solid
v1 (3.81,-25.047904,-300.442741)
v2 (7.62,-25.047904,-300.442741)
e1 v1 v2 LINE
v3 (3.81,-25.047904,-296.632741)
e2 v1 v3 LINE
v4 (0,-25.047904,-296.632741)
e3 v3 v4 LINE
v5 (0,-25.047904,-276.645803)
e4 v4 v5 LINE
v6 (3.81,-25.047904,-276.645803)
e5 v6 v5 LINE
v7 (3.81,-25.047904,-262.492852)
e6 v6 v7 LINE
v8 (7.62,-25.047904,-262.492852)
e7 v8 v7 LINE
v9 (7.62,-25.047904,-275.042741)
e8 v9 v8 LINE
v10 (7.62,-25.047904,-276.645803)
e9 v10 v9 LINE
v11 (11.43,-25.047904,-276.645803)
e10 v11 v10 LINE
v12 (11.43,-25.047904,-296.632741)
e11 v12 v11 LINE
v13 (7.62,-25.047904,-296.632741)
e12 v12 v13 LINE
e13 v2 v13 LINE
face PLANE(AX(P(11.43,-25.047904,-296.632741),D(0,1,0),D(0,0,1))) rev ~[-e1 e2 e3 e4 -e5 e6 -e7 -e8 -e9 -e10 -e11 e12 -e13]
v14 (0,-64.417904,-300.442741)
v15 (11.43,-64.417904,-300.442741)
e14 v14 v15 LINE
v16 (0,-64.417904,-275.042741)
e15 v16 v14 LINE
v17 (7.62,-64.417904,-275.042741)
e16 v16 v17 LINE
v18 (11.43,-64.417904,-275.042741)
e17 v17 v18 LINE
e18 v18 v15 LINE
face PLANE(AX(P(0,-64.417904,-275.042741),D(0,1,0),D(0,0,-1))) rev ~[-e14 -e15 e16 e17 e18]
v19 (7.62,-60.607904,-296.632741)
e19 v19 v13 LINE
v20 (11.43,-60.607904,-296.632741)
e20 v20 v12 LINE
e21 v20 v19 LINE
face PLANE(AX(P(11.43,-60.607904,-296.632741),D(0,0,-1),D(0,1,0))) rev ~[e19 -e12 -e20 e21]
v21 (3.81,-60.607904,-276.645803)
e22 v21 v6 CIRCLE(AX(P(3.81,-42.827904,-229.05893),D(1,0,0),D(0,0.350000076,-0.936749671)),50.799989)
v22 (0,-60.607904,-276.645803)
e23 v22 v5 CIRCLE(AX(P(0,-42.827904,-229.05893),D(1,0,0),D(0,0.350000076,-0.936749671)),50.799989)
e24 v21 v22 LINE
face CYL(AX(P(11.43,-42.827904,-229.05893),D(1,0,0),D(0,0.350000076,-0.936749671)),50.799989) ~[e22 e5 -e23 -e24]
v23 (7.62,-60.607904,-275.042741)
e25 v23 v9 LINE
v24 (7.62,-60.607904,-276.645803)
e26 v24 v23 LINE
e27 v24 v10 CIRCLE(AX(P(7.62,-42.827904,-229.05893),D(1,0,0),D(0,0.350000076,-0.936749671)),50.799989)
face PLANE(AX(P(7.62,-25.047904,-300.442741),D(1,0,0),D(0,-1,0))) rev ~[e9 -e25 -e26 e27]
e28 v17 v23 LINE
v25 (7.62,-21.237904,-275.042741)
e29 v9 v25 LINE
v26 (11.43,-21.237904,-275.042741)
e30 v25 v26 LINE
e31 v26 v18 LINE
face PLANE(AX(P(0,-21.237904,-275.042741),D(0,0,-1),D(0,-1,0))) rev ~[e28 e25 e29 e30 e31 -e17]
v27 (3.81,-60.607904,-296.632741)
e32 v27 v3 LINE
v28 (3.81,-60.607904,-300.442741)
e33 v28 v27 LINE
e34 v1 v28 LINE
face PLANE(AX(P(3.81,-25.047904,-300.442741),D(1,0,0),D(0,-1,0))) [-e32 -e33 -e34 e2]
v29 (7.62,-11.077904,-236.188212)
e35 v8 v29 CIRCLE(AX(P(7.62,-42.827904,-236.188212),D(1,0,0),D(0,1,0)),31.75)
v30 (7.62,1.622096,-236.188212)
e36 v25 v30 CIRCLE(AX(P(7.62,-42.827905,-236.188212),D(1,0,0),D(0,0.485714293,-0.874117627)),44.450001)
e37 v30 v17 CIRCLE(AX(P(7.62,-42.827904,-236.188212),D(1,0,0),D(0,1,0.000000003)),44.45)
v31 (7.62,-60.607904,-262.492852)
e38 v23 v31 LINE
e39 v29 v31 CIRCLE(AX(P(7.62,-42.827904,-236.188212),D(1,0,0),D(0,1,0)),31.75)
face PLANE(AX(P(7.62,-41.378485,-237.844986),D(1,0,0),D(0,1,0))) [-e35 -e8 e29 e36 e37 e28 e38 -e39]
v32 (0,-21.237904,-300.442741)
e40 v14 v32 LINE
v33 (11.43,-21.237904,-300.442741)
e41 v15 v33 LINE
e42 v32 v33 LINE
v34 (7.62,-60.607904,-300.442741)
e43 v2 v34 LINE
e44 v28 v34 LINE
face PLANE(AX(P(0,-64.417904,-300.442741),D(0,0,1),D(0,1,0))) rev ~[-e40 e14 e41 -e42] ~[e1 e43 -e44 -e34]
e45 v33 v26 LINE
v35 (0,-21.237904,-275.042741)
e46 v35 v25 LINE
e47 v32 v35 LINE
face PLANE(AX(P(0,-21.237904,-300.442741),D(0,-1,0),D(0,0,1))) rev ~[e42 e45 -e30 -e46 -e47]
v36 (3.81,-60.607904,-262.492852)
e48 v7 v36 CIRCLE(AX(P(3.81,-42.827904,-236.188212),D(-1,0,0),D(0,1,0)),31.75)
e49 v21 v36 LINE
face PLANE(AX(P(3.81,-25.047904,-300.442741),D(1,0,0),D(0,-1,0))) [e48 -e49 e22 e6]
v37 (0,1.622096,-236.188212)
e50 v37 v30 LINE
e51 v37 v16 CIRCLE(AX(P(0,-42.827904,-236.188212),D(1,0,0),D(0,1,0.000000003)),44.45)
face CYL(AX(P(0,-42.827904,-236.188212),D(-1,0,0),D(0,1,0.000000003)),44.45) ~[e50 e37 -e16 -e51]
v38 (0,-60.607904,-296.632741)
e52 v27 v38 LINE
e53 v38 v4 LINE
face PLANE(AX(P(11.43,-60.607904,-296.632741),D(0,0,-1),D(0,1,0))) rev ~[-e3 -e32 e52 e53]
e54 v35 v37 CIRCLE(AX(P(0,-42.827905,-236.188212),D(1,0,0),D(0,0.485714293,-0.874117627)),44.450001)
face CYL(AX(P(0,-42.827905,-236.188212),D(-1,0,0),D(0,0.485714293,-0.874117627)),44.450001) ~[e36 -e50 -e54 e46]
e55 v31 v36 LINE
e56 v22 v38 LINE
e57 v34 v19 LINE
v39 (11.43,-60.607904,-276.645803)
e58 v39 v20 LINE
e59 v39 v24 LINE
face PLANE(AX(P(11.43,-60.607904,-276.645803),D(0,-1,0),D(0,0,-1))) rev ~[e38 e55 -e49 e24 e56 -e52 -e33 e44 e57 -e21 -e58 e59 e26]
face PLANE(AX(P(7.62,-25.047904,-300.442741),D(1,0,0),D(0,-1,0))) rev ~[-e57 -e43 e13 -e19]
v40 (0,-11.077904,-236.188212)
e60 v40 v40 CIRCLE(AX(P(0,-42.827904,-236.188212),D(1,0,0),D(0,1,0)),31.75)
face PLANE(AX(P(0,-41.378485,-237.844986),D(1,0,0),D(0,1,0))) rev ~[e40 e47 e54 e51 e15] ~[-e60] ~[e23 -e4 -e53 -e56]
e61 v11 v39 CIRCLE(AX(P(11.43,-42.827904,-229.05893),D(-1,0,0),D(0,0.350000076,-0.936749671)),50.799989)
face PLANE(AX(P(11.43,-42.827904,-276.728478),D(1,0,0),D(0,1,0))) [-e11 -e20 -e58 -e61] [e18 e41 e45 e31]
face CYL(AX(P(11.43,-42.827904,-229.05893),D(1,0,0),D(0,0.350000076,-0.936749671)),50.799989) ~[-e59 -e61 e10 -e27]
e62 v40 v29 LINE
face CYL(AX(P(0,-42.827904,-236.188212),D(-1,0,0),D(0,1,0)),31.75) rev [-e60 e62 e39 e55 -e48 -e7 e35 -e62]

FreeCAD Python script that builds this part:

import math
import FreeCAD as App
import Part
import Sketcher
from FreeCAD import Vector
Q = App.Units.Quantity


def add_polygon(sketch, points):
    """Adds a closed chain of lines whose ends are joined by coincident constraints."""
    first, n = sketch.GeometryCount, len(points)
    for a, b in zip(points, points[1:] + points[:1]):
        sketch.addGeometry(Part.LineSegment(App.Vector(*a, 0), App.Vector(*b, 0)), False)
    for i in range(n):
        sketch.addConstraint(Sketcher.Constraint("Coincident", first + i, 2, first + (i + 1) % n, 1))

doc = App.newDocument("Part")
body = doc.addObject("PartDesign::Body", "Body")

# Sketch on YZ plane
sketch1 = doc.addObject("Sketcher::SketchObject", "Sketch")
body.addObject(sketch1)
sketch1.AttachmentSupport = (doc.YZ_Plane, [""])
sketch1.MapMode = "FlatFace"
add_polygon(sketch1, [(-21, -275), (-64, -275), (-64, -300), (-21, -300)])  # lines 0-3
sketch1.addConstraint(Sketcher.Constraint("Horizontal", 0))
sketch1.addConstraint(Sketcher.Constraint("Vertical", 1))
sketch1.addConstraint(Sketcher.Constraint("Horizontal", 2))
sketch1.addConstraint(Sketcher.Constraint("Vertical", 3))
sketch1.addConstraint(Sketcher.Constraint("DistanceY", 1, 2, 1, 1, Q("1 in")))
sketch1.addConstraint(Sketcher.Constraint("DistanceX", 0, 2, 0, 1, Q("1.7 in")))
sketch1.addConstraint(Sketcher.Constraint("DistanceY", 0, 2, -1, 1, Q("275.042741 mm")))
sketch1.addConstraint(Sketcher.Constraint("DistanceX", 0, 2, -1, 1, Q("64.417904 mm")))
pad1 = doc.addObject("PartDesign::Pad", "Pad")
body.addObject(pad1)
pad1.Profile = sketch1
pad1.Length = Q("0.45 in")

# Sketch on YZ plane
sketch2 = doc.addObject("Sketcher::SketchObject", "Sketch001")
body.addObject(sketch2)
sketch2.AttachmentSupport = (doc.YZ_Plane, [""])
sketch2.MapMode = "FlatFace"
sketch2.addGeometry(Part.ArcOfCircle(Part.Circle(Vector(-43, -236, 0), Vector(0, 0, 1), 44), math.radians(-61), math.radians(0)), False)
sketch2.addGeometry(Part.ArcOfCircle(Part.Circle(Vector(-43, -236, 0), Vector(0, 0, 1), 44), math.radians(0), math.radians(241)), False)
sketch2.addGeometry(Part.LineSegment(Vector(-64, -275, 0), Vector(-21, -275, 0)), False)
sketch2.addGeometry(Part.Circle(Vector(-43, -236, 0), Vector(0, 0, 1), 32), False)
sketch2.addConstraint(Sketcher.Constraint("Tangent", 0, 2, 1, 1))
sketch2.addConstraint(Sketcher.Constraint("Coincident", 1, 2, 2, 1))
sketch2.addConstraint(Sketcher.Constraint("Coincident", 2, 2, 0, 1))
sketch2.addConstraint(Sketcher.Constraint("Horizontal", 2))
sketch2.addConstraint(Sketcher.Constraint("Coincident", 3, 3, 0, 3))
sketch2.addConstraint(Sketcher.Constraint("Equal", 0, 1))
sketch2.addConstraint(Sketcher.Constraint("Horizontal", 3, 3, 0, 2))
sketch2.addConstraint(Sketcher.Constraint("Diameter", 3, Q("2.5 in")))
sketch2.addConstraint(Sketcher.Constraint("Radius", 0, Q("1.75 in")))
sketch2.addConstraint(Sketcher.Constraint("DistanceX", 2, 1, 2, 2, Q("1.7 in")))
sketch2.addConstraint(Sketcher.Constraint("DistanceY", 0, 3, -1, 1, Q("236.188212 mm")))
sketch2.addConstraint(Sketcher.Constraint("DistanceX", 0, 3, -1, 1, Q("42.827905 mm")))
pad2 = doc.addObject("PartDesign::Pad", "Pad001")
body.addObject(pad2)
pad2.Profile = sketch2
pad2.Length = Q("0.3 in")

# Sketch on XY plane
sketch3 = doc.addObject("Sketcher::SketchObject", "Sketch002")
body.addObject(sketch3)
sketch3.AttachmentSupport = (doc.XY_Plane, [""])
sketch3.MapMode = "FlatFace"
sketch3.AttachmentOffset = App.Placement(Vector(0, 0, -300.442741), App.Rotation())
add_polygon(sketch3, [(3.8, -60.6), (3.8, -25), (7.6, -25), (7.6, -60.6)])  # lines 0-3
sketch3.addConstraint(Sketcher.Constraint("Vertical", 0))
sketch3.addConstraint(Sketcher.Constraint("Horizontal", 1))
sketch3.addConstraint(Sketcher.Constraint("Vertical", 2))
sketch3.addConstraint(Sketcher.Constraint("Horizontal", 3))
sketch3.addConstraint(Sketcher.Constraint("DistanceY", 0, 1, 0, 2, Q("1.4 in")))
sketch3.addConstraint(Sketcher.Constraint("DistanceX", 1, 1, 1, 2, Q("0.15 in")))
sketch3.addConstraint(Sketcher.Constraint("DistanceX", -1, 1, 1, 2, Q("0.3 in")))
sketch3.addConstraint(Sketcher.Constraint("DistanceY", 0, 2, -1, 1, Q("25.047904 mm")))
pocket1 = doc.addObject("PartDesign::Pocket", "Pocket")
body.addObject(pocket1)
pocket1.Profile = sketch3
pocket1.Length = Q("3 in")
pocket1.Reversed = True

# Sketch on YZ plane
sketch4 = doc.addObject("Sketcher::SketchObject", "Sketch003")
body.addObject(sketch4)
sketch4.AttachmentSupport = (doc.YZ_Plane, [""])
sketch4.MapMode = "FlatFace"
sketch4.AttachmentOffset = App.Placement(Vector(0, 0, 0.45 * 25.4), App.Rotation())
sketch4.addGeometry(Part.LineSegment(Vector(-61, -277, 0), Vector(-61, -297, 0)), False)
sketch4.addGeometry(Part.LineSegment(Vector(-61, -297, 0), Vector(-25, -297, 0)), False)
sketch4.addGeometry(Part.LineSegment(Vector(-25, -297, 0), Vector(-25, -277, 0)), False)
sketch4.addGeometry(Part.ArcOfCircle(Part.Circle(Vector(-43, -229, 0), Vector(0, 0, 1), 51), math.radians(-110), math.radians(-70)), False)
sketch4.addConstraint(Sketcher.Constraint("Coincident", 0, 2, 1, 1))
sketch4.addConstraint(Sketcher.Constraint("Coincident", 1, 2, 2, 1))
sketch4.addConstraint(Sketcher.Constraint("Coincident", 2, 2, 3, 2))
sketch4.addConstraint(Sketcher.Constraint("Coincident", 3, 1, 0, 1))
sketch4.addConstraint(Sketcher.Constraint("Vertical", 0))
sketch4.addConstraint(Sketcher.Constraint("Horizontal", 1))
sketch4.addConstraint(Sketcher.Constraint("Vertical", 2))
sketch4.addConstraint(Sketcher.Constraint("Horizontal", 2, 2, 3, 1))
sketch4.addConstraint(Sketcher.Constraint("DistanceX", 1, 1, 1, 2, Q("1.4 in")))
sketch4.addConstraint(Sketcher.Constraint("Radius", 3, Q("50.799989 mm")))
sketch4.addConstraint(Sketcher.Constraint("DistanceY", 0, 2, 0, 1, Q("19.986938 mm")))
sketch4.addConstraint(Sketcher.Constraint("DistanceY", 3, 3, -1, 1, Q("229.05893 mm")))
sketch4.addConstraint(Sketcher.Constraint("DistanceX", 3, 3, -1, 1, Q("42.827904 mm")))
pocket2 = doc.addObject("PartDesign::Pocket", "Pocket001")
body.addObject(pocket2)
pocket2.Profile = sketch4
pocket2.Length = Q("3 in")

doc.recompute()
